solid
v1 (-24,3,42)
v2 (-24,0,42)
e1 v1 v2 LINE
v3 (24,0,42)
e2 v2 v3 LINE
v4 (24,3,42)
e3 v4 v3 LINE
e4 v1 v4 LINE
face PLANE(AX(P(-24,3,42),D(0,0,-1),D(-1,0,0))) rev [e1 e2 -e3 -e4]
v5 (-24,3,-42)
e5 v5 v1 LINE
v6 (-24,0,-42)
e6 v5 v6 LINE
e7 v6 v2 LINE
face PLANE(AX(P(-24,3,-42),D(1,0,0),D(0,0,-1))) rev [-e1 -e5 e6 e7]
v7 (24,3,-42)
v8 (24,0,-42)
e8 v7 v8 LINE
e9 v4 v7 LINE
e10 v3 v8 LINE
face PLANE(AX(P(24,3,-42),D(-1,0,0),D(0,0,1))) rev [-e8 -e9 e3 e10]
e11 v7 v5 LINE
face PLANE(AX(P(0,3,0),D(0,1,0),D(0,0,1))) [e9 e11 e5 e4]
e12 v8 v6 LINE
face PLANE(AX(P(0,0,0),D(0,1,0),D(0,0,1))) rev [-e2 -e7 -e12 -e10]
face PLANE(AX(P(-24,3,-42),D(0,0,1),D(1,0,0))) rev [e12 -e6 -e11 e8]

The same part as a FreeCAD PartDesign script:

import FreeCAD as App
import Part
import Sketcher
from FreeCAD import Vector

doc = App.newDocument("Part")
body = doc.addObject("PartDesign::Body", "Body")

# Sketch on XZ plane
sketch1 = body.newObject("Sketcher::SketchObject", "Sketch")
sketch1.AttachmentSupport = (doc.getObject("XZ_Plane"), [""])
sketch1.MapMode = "FlatFace"
sketch1.addGeometry([
    Part.LineSegment(Vector(-24, -42, 0), Vector(-24, 42, 0)),
    Part.LineSegment(Vector(-24, 42, 0), Vector(24, 42, 0)),
    Part.LineSegment(Vector(24, 42, 0), Vector(24, -42, 0)),
    Part.LineSegment(Vector(24, -42, 0), Vector(-24, -42, 0)),
], False)
sketch1.addConstraint([
    Sketcher.Constraint("Coincident", 0, 2, 1, 1),
    Sketcher.Constraint("Coincident", 1, 2, 2, 1),
    Sketcher.Constraint("Coincident", 2, 2, 3, 1),
    Sketcher.Constraint("Coincident", 3, 2, 0, 1),
    Sketcher.Constraint("Vertical", 0),
    Sketcher.Constraint("Horizontal", 1),
    Sketcher.Constraint("Vertical", 2),
    Sketcher.Constraint("Horizontal", 3),
    Sketcher.Constraint("Symmetric", 0, 2, 2, 2, -1, 1),
    Sketcher.Constraint("DistanceX", 1, 1, 1, 2, 48.0),
    Sketcher.Constraint("DistanceY", 0, 1, 0, 2, 84.0),
])
pad1 = body.newObject("PartDesign::Pad", "Pad")
pad1.Profile = sketch1
pad1.Length = 3
pad1.Reversed = True

doc.recompute()
